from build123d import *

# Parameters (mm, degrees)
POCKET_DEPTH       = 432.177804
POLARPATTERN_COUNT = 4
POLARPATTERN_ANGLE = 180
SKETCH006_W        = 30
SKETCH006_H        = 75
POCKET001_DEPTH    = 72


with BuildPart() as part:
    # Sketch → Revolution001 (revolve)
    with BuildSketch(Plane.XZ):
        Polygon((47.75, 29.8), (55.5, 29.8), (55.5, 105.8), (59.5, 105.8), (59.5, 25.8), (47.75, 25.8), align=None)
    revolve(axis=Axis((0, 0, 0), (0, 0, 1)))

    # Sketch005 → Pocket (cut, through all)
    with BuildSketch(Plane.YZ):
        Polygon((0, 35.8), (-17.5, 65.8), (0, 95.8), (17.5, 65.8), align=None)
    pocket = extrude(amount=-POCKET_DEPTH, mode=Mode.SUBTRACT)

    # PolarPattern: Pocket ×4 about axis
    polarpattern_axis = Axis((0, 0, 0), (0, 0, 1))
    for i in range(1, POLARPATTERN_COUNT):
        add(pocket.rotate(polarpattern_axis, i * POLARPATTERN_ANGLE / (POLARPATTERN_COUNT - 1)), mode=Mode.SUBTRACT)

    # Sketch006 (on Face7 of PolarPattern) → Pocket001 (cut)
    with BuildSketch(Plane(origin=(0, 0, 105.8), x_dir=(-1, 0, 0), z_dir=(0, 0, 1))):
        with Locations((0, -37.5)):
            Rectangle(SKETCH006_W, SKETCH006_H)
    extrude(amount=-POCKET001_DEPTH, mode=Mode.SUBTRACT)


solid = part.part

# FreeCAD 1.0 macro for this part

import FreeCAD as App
import Part
import Sketcher

V = App.Vector

doc = App.newDocument("Part")
body = doc.addObject("PartDesign::Body", "Body")

# Sketch on XZ plane
sketch1 = body.newObject("Sketcher::SketchObject", "Sketch")
sketch1.AttachmentSupport = (doc.getObject("XZ_Plane"), [""])
sketch1.MapMode = "FlatFace"
sketch1.addGeometry([
    Part.LineSegment(V(55.5, 29.8, 0), V(47.8, 29.8, 0)),  # 0
    Part.LineSegment(V(47.8, 29.8, 0), V(47.8, 25.8, 0)),  # 1
    Part.LineSegment(V(47.8, 25.8, 0), V(59.5, 25.8, 0)),  # 2
    Part.LineSegment(V(59.5, 25.8, 0), V(59.5, 105.8, 0)),  # 3
    Part.LineSegment(V(59.5, 105.8, 0), V(55.5, 105.8, 0)),  # 4
    Part.LineSegment(V(55.5, 105.8, 0), V(55.5, 29.8, 0)),  # 5
], False)
sketch1.addConstraint([
    Sketcher.Constraint("Coincident", 0, 2, 1, 1),
    Sketcher.Constraint("Coincident", 1, 2, 2, 1),
    Sketcher.Constraint("Coincident", 2, 2, 3, 1),
    Sketcher.Constraint("Coincident", 3, 2, 4, 1),
    Sketcher.Constraint("Coincident", 4, 2, 5, 1),
    Sketcher.Constraint("Coincident", 5, 2, 0, 1),
    Sketcher.Constraint("Horizontal", 0),
    Sketcher.Constraint("Vertical", 1),
    Sketcher.Constraint("Horizontal", 2),
    Sketcher.Constraint("Vertical", 3),
    Sketcher.Constraint("Horizontal", 4),
    Sketcher.Constraint("Vertical", 5),
    Sketcher.Constraint("Equal", 4, 1),
    Sketcher.Constraint("DistanceX", 4, 2, 4, 1, 4.0),
    Sketcher.Constraint("DistanceY", 3, 1, 3, 2, 80.0),
    Sketcher.Constraint("DistanceX", 0, 2, 0, 1, 7.75),
    Sketcher.Constraint("DistanceY", -1, 1, 0, 2, 29.8),
    Sketcher.Constraint("DistanceX", -1, 1, 2, 2, 59.5),
])
revolution = body.newObject("PartDesign::Revolution", "Revolution")
revolution.Profile = sketch1
revolution.ReferenceAxis = (sketch1, ["V_Axis"])
revolution.Angle = 360

# Sketch on YZ plane
sketch2 = body.newObject("Sketcher::SketchObject", "Sketch001")
sketch2.AttachmentSupport = (doc.getObject("YZ_Plane"), [""])
sketch2.MapMode = "FlatFace"
sketch2.addGeometry([
    Part.LineSegment(V(-18, 66, 0), V(0, 36, 0)),
    Part.LineSegment(V(0, 36, 0), V(18, 66, 0)),
    Part.LineSegment(V(18, 66, 0), V(0, 96, 0)),
    Part.LineSegment(V(0, 96, 0), V(-18, 66, 0)),
], False)
sketch2.addConstraint([
    Sketcher.Constraint("Coincident", 0, 2, 1, 1),
    Sketcher.Constraint("Coincident", 1, 2, 2, 1),
    Sketcher.Constraint("Coincident", 2, 2, 3, 1),
    Sketcher.Constraint("Coincident", 3, 2, 0, 1),
    Sketcher.Constraint("Symmetric", 1, 2, 3, 2, -2),
    Sketcher.Constraint("PointOnObject", 0, 2, -2),
    Sketcher.Constraint("PointOnObject", 2, 2, -2),
    Sketcher.Constraint("Parallel", 0, 2),
    Sketcher.Constraint("DistanceY", 0, 2, 1, 2, 30.0),
    Sketcher.Constraint("DistanceX", 3, 2, 1, 2, 35.0),
    Sketcher.Constraint("DistanceY", -1, 1, 0, 2, 35.8),
])
pocket1 = body.newObject("PartDesign::Pocket", "Pocket")
pocket1.Profile = sketch2
pocket1.Type = "ThroughAll"
doc.recompute()

polarpattern = body.newObject("PartDesign::PolarPattern", "PolarPattern")
polarpattern.Originals = [pocket1]
polarpattern.Axis = (doc.getObject("Z_Axis"), [""])
polarpattern.Angle = 180
polarpattern.Occurrences = 4
body.Tip = polarpattern

# Sketch on XY plane
sketch3 = body.newObject("Sketcher::SketchObject", "Sketch002")
sketch3.AttachmentSupport = (doc.getObject("XY_Plane"), [""])
sketch3.MapMode = "FlatFace"
sketch3.AttachmentOffset = App.Placement(V(0, 0, 105.8), App.Rotation())
sketch3.addGeometry([
    Part.LineSegment(V(15, 0, 0), V(15, 75, 0)),
    Part.LineSegment(V(15, 75, 0), V(-15, 75, 0)),
    Part.LineSegment(V(-15, 75, 0), V(-15, 0, 0)),
    Part.LineSegment(V(-15, 0, 0), V(15, 0, 0)),
], False)
sketch3.addConstraint([
    Sketcher.Constraint("Coincident", 0, 2, 1, 1),
    Sketcher.Constraint("Coincident", 1, 2, 2, 1),
    Sketcher.Constraint("Coincident", 2, 2, 3, 1),
    Sketcher.Constraint("Coincident", 3, 2, 0, 1),
    Sketcher.Constraint("Vertical", 0),
    Sketcher.Constraint("Horizontal", 1),
    Sketcher.Constraint("Vertical", 2),
    Sketcher.Constraint("Horizontal", 3),
    Sketcher.Constraint("Symmetric", 2, 2, 3, 2, -1, 1),
    Sketcher.Constraint("DistanceX", 1, 2, 1, 1, 30.0),
    Sketcher.Constraint("DistanceY", 0, 1, 0, 2, 75.0),
])
pocket2 = body.newObject("PartDesign::Pocket", "Pocket001")
pocket2.Profile = sketch3
pocket2.Length = 72

doc.recompute()
